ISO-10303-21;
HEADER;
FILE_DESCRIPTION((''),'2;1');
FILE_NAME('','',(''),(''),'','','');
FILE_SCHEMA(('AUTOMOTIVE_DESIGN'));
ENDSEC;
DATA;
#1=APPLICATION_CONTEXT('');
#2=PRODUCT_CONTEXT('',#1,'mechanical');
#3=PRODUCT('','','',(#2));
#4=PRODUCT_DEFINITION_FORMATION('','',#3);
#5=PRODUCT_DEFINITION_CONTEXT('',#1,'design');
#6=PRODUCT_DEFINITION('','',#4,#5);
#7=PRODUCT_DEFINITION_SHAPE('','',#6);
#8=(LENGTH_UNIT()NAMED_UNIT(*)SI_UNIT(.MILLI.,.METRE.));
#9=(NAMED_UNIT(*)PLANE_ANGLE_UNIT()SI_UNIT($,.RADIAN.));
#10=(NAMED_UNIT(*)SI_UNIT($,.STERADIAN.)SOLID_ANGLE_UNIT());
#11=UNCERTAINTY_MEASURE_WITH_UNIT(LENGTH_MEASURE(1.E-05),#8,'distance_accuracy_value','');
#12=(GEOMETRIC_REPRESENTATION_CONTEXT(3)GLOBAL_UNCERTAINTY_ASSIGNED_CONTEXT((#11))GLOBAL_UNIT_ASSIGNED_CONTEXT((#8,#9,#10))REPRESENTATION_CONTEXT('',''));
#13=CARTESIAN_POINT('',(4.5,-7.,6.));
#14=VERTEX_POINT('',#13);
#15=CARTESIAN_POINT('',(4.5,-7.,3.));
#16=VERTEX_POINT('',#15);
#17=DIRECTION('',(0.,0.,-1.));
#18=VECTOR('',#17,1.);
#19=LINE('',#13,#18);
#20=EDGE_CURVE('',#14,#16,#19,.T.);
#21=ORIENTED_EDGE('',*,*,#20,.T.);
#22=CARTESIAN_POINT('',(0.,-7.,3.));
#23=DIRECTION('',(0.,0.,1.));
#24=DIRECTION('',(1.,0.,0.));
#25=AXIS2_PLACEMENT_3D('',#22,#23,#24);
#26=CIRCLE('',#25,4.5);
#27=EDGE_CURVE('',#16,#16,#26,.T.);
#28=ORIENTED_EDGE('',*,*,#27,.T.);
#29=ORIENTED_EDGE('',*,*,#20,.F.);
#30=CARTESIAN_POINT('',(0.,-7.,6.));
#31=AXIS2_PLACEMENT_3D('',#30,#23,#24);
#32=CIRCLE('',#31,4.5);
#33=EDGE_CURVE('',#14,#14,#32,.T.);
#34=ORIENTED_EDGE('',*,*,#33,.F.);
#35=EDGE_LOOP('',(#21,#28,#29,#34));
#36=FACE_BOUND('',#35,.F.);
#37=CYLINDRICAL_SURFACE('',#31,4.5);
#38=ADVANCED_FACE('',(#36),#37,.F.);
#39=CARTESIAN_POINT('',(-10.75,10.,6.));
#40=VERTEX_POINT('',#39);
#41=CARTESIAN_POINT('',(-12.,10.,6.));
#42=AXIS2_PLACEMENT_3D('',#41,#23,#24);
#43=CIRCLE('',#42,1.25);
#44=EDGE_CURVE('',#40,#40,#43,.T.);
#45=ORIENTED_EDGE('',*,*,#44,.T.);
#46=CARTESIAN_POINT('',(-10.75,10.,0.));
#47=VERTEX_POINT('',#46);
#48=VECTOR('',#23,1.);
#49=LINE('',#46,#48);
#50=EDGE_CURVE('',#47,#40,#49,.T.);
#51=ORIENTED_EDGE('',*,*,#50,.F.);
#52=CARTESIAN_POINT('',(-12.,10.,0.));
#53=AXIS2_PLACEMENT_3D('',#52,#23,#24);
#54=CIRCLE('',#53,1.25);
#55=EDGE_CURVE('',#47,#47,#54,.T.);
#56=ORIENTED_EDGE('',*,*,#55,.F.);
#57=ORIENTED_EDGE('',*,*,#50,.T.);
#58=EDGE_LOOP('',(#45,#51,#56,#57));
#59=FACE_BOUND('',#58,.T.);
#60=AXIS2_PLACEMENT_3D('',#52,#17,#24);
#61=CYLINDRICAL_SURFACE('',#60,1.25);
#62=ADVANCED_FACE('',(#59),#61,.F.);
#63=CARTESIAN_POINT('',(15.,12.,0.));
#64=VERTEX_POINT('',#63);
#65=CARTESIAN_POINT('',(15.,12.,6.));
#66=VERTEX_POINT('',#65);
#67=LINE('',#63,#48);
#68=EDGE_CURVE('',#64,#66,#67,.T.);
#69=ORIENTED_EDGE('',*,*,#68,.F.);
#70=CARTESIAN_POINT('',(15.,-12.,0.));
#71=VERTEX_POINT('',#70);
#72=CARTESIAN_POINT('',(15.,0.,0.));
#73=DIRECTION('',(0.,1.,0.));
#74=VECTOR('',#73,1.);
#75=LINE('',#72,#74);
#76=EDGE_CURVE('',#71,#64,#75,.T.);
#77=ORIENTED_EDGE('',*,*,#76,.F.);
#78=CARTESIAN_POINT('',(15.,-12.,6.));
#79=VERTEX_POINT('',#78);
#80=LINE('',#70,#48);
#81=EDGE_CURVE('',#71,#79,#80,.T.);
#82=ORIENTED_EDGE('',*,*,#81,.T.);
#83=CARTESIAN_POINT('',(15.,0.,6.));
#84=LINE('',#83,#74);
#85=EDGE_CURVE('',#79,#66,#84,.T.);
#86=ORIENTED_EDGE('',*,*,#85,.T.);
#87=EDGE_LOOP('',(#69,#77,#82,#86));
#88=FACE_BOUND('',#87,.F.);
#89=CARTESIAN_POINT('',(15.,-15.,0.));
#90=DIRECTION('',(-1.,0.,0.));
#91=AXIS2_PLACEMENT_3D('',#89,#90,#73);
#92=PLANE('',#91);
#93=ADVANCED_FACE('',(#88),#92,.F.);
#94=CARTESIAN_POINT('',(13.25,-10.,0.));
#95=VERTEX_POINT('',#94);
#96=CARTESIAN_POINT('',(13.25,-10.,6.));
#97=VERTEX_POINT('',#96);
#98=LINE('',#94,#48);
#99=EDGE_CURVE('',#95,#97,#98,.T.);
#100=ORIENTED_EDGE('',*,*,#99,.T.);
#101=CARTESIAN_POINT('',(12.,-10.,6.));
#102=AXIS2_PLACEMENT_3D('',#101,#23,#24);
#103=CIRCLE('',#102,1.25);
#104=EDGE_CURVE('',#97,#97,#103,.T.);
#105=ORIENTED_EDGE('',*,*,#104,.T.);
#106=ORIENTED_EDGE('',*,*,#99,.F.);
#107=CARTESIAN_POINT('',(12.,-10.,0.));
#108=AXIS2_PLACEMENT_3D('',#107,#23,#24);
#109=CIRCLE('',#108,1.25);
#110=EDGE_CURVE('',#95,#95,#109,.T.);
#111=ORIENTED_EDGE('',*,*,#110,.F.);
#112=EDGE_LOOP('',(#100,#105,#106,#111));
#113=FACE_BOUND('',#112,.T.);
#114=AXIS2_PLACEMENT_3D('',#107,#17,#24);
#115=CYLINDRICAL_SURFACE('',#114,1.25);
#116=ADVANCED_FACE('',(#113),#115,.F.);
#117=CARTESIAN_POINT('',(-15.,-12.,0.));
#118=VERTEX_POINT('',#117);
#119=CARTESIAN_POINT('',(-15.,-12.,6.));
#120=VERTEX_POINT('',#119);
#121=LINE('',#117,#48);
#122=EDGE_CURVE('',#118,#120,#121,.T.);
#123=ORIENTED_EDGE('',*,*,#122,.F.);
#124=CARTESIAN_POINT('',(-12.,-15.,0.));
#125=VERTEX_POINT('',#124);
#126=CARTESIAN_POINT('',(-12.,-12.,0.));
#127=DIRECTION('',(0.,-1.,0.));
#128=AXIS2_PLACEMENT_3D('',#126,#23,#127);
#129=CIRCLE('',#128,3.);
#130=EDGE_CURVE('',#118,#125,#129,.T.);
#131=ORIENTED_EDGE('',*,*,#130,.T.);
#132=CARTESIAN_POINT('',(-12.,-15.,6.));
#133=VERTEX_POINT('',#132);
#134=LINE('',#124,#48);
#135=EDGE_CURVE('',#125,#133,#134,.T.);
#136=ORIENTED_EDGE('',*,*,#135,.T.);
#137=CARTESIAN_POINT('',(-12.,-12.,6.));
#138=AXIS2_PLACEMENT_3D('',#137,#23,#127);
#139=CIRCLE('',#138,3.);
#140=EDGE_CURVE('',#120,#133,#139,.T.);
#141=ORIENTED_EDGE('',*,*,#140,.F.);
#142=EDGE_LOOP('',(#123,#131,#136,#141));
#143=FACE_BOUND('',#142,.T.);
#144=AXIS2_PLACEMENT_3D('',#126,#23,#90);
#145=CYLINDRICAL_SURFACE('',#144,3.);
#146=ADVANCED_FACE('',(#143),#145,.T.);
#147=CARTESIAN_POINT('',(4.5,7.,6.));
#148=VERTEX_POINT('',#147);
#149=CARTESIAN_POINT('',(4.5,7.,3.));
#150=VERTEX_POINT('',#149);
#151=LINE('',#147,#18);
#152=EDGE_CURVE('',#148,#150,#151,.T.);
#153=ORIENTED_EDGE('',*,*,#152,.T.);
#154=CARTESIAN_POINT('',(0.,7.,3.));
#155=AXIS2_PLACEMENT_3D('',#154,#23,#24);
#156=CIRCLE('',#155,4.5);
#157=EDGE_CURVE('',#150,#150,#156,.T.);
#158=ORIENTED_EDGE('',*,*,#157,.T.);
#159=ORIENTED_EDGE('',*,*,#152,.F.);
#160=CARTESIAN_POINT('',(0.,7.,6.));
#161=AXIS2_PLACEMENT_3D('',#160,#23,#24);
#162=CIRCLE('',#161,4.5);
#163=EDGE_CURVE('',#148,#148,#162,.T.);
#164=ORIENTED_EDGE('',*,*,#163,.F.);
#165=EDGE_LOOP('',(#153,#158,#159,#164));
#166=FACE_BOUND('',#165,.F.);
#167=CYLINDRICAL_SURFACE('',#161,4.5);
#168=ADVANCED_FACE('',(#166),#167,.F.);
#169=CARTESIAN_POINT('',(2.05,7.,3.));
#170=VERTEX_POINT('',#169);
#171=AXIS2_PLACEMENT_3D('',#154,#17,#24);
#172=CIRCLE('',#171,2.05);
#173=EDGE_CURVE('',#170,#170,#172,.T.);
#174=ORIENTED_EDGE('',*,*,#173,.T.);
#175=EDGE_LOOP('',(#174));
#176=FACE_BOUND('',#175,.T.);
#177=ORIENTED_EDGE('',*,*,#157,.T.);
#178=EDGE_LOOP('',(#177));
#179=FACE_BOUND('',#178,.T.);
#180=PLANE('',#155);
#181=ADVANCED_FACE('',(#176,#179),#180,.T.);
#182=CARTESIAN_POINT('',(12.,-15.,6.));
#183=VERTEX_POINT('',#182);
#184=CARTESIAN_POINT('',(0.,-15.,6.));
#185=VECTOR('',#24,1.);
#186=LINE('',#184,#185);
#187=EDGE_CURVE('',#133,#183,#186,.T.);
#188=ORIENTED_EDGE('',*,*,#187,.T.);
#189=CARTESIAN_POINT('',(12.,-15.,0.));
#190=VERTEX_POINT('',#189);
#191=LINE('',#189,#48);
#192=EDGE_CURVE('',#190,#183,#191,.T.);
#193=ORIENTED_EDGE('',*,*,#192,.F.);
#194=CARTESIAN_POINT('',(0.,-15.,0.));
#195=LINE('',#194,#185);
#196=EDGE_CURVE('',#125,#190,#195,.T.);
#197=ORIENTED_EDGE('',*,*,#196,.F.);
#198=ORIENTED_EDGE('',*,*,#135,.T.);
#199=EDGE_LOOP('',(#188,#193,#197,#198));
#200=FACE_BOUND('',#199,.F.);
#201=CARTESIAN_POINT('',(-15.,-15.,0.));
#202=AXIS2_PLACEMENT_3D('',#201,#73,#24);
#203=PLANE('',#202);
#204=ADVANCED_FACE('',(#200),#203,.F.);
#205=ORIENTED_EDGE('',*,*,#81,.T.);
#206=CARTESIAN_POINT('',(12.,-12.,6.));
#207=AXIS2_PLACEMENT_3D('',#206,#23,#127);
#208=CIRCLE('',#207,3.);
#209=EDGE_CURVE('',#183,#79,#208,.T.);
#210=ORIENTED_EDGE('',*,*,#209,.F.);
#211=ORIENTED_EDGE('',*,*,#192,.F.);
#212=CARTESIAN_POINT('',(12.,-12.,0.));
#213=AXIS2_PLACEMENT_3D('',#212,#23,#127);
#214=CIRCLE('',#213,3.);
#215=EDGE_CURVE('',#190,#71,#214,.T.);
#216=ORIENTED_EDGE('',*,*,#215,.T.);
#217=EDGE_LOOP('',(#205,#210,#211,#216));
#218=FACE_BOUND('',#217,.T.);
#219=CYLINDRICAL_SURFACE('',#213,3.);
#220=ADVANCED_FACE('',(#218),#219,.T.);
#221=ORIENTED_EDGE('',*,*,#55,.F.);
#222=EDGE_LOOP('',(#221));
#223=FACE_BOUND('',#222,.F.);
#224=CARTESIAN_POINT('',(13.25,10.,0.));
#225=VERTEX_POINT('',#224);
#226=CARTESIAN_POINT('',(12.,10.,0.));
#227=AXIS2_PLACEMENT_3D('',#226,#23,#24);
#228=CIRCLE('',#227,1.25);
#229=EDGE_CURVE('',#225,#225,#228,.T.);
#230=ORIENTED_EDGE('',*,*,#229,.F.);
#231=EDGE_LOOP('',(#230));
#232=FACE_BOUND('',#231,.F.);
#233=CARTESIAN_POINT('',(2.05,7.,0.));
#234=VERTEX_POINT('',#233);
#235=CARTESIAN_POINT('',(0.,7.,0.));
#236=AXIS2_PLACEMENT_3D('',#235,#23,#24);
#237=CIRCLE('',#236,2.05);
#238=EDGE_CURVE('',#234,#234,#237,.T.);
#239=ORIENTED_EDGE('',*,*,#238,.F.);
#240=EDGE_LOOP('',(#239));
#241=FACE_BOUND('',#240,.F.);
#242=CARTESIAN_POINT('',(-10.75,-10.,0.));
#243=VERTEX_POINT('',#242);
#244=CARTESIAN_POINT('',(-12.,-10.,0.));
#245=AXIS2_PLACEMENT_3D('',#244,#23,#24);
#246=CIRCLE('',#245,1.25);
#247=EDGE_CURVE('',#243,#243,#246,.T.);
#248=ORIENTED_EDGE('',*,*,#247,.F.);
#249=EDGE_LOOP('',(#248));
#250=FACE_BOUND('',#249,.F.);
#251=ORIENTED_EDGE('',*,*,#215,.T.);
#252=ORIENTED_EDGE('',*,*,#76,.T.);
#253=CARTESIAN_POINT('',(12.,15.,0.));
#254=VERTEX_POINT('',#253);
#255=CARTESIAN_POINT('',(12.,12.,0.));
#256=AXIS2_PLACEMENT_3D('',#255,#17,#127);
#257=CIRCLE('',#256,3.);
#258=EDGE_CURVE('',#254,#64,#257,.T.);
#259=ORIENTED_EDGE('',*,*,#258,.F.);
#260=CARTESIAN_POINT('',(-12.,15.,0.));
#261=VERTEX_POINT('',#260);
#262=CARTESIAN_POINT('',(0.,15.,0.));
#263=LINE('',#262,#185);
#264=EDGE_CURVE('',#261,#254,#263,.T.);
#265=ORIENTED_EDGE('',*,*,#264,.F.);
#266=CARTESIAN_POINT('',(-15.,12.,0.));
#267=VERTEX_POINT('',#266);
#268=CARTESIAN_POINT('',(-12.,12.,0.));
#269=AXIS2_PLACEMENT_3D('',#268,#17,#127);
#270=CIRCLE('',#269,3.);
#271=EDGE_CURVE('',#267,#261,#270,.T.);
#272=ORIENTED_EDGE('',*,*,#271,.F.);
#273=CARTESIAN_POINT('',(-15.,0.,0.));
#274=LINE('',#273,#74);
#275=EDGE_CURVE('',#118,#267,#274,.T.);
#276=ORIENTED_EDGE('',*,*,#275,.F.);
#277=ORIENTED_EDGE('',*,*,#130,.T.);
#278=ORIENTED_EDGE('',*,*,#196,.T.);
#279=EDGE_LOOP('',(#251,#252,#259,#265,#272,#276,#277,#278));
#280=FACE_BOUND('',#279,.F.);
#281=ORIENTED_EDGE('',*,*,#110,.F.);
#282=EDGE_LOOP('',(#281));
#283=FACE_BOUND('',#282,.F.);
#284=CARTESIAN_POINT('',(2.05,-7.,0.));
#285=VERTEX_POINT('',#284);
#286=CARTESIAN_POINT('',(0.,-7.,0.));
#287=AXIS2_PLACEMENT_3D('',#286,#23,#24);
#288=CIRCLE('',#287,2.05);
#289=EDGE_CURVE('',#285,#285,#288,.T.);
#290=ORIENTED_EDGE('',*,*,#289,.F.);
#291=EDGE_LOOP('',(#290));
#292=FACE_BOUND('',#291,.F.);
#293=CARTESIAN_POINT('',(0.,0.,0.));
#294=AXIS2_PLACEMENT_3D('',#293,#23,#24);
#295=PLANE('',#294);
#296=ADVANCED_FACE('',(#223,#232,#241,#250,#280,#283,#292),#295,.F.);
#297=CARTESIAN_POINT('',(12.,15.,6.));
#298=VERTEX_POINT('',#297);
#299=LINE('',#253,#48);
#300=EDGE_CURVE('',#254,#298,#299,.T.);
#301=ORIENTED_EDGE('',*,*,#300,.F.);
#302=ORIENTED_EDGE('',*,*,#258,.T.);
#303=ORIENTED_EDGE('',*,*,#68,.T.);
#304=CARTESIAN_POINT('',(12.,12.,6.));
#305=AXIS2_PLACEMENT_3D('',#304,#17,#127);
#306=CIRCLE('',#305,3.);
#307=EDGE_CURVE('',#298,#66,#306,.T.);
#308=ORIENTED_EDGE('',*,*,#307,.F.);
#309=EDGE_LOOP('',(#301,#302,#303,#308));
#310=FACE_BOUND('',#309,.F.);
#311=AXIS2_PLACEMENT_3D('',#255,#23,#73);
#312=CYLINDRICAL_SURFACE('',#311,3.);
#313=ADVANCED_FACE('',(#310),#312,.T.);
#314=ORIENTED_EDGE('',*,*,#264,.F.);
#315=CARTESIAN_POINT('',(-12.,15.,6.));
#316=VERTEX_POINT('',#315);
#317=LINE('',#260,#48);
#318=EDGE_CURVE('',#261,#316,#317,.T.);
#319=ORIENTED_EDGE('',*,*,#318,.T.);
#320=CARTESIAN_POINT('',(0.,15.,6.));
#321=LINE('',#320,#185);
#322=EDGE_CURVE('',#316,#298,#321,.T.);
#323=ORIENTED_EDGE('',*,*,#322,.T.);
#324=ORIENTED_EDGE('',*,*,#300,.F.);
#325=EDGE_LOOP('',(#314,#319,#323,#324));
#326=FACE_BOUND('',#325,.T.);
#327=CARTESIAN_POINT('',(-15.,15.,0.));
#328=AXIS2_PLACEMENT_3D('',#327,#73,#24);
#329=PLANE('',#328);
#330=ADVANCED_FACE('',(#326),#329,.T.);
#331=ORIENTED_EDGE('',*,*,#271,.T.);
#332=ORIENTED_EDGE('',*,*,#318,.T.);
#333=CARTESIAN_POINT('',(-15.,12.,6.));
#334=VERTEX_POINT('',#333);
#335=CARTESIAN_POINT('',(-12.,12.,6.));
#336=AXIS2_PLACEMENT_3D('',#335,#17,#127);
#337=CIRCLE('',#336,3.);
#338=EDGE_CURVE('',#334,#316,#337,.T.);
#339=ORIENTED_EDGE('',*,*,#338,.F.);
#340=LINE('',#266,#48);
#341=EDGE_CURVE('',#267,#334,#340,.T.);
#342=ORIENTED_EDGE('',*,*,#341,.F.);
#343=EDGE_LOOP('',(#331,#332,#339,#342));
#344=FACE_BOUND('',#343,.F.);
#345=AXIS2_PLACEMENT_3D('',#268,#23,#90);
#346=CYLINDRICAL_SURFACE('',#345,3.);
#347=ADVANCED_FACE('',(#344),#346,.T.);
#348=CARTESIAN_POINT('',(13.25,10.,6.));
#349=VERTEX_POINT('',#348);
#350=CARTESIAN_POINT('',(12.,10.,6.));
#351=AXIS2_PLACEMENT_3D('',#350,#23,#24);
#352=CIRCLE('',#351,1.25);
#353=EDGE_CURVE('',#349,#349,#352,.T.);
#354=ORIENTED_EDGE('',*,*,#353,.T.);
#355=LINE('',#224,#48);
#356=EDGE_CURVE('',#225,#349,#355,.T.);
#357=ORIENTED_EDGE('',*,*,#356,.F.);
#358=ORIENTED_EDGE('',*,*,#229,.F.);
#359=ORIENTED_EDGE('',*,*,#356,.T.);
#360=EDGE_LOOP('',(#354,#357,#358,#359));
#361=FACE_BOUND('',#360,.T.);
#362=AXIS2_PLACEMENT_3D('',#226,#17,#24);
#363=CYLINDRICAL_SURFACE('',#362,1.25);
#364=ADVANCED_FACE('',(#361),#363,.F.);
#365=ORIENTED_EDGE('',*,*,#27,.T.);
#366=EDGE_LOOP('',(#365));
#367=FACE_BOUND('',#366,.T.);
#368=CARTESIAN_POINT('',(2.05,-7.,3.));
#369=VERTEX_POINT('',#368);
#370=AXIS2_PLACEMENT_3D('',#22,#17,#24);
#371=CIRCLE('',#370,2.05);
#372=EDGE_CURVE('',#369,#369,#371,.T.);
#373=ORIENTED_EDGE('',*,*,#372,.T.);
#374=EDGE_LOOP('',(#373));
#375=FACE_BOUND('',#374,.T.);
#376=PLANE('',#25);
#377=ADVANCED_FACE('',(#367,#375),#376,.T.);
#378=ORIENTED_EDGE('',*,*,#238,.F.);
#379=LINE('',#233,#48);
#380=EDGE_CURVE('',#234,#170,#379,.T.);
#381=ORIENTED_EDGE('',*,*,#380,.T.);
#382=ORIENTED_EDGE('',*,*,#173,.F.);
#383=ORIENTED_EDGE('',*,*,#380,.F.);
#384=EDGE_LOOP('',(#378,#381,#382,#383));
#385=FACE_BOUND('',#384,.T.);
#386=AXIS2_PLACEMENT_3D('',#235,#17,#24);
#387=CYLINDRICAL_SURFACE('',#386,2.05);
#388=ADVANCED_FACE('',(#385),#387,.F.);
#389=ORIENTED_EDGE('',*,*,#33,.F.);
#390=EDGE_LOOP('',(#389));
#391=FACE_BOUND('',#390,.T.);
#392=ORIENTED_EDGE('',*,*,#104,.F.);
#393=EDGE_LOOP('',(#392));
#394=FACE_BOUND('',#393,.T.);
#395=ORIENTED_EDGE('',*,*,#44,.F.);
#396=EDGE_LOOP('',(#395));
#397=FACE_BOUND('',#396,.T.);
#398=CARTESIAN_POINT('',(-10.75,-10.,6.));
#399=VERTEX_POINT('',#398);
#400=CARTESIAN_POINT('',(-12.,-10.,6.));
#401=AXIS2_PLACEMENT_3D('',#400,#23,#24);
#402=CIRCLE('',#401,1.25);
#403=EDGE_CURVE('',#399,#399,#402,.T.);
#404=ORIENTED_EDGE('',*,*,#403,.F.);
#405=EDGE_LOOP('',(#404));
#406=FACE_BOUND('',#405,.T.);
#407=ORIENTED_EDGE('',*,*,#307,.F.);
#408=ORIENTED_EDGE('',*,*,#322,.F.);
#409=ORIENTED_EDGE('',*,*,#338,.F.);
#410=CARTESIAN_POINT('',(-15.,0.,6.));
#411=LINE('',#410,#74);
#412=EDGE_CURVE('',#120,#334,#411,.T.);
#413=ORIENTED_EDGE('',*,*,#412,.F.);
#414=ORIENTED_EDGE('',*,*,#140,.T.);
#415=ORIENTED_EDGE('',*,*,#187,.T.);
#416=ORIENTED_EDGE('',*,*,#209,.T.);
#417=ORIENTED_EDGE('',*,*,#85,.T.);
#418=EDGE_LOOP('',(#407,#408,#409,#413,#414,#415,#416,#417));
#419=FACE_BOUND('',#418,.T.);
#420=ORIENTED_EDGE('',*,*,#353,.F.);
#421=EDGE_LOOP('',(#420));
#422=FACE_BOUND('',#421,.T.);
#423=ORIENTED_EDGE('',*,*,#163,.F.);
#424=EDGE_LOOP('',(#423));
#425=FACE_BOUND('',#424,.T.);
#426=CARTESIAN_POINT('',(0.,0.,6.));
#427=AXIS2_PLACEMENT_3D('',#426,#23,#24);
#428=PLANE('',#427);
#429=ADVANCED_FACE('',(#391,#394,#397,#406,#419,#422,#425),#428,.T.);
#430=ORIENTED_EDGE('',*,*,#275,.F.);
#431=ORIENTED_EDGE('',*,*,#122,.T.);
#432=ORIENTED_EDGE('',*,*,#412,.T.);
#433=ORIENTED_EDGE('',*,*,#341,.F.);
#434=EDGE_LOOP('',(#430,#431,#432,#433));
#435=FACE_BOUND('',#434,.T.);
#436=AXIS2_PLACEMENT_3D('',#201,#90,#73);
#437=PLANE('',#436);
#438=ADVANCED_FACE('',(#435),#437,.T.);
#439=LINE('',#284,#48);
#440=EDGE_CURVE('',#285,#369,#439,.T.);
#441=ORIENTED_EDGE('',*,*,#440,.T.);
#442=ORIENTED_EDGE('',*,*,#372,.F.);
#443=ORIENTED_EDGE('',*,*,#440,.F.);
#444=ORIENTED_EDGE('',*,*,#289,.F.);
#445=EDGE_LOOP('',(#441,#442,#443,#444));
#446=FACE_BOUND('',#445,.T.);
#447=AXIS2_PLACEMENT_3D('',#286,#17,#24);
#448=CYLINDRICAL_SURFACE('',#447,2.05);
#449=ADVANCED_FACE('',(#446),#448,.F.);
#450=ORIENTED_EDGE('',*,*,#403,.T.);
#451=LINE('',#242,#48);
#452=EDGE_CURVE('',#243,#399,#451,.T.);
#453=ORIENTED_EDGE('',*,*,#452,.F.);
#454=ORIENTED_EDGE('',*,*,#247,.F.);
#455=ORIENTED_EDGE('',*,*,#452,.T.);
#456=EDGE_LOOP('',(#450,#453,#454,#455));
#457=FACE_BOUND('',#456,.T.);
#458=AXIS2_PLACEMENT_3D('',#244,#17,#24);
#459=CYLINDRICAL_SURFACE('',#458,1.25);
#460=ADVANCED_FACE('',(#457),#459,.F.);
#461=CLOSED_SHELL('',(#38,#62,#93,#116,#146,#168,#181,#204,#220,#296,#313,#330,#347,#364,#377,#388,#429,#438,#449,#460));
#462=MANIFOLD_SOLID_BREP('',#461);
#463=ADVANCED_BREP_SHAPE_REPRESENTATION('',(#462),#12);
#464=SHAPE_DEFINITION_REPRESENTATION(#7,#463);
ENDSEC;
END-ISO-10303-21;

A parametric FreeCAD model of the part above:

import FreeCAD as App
import Part
import Sketcher


def edges_at(feature, points):
    """Names of the edges that pass closest to the given points."""
    edges = feature.Shape.Edges
    near = lambda p: min(range(len(edges)), key=lambda i: edges[i].distToShape(Part.Vertex(*p))[0])
    return sorted({f"Edge{near(p) + 1}" for p in points})

doc = App.newDocument("Part")
body = doc.addObject("PartDesign::Body", "Body")

# Sketch on XY plane
sketch1 = body.newObject("Sketcher::SketchObject", "Sketch")
sketch1.AttachmentSupport = (doc.getObject("XY_Plane"), [""])
sketch1.MapMode = "FlatFace"
sketch1.addGeometry([
    Part.LineSegment(App.Vector(-15, 15, 0), App.Vector(-15, -15, 0)),  # 0
    Part.LineSegment(App.Vector(-15, -15, 0), App.Vector(15, -15, 0)),  # 1
    Part.LineSegment(App.Vector(15, -15, 0), App.Vector(15, 15, 0)),  # 2
    Part.LineSegment(App.Vector(15, 15, 0), App.Vector(-15, 15, 0)),  # 3
    Part.Circle(App.Vector(-12, -10, 0), App.Vector(0, 0, 1), 1.2),  # 4
    Part.Circle(App.Vector(0, -7, 0), App.Vector(0, 0, 1), 2),  # 5
    Part.Circle(App.Vector(12, -10, 0), App.Vector(0, 0, 1), 1.2),  # 6
    Part.Circle(App.Vector(-12, 10, 0), App.Vector(0, 0, 1), 1.2),  # 7
    Part.Circle(App.Vector(0, 7, 0), App.Vector(0, 0, 1), 2),  # 8
    Part.Circle(App.Vector(12, 10, 0), App.Vector(0, 0, 1), 1.2),  # 9
], False)
sketch1.addConstraint([
    Sketcher.Constraint("Coincident", 0, 2, 1, 1),
    Sketcher.Constraint("Coincident", 1, 2, 2, 1),
    Sketcher.Constraint("Coincident", 2, 2, 3, 1),
    Sketcher.Constraint("Coincident", 3, 2, 0, 1),
    Sketcher.Constraint("Vertical", 0),
    Sketcher.Constraint("Horizontal", 1),
    Sketcher.Constraint("Vertical", 2),
    Sketcher.Constraint("Horizontal", 3),
    Sketcher.Constraint("Equal", 4, 6),
    Sketcher.Constraint("Equal", 6, 7),
    Sketcher.Constraint("Equal", 5, 8),
    Sketcher.Constraint("Equal", 7, 9),
    Sketcher.Constraint("Symmetric", 6, 3, 7, 3, -1, 1),
    Sketcher.Constraint("Symmetric", 5, 3, 8, 3, -1, 1),
    Sketcher.Constraint("Symmetric", 4, 3, 9, 3, -1, 1),
    Sketcher.Constraint("Symmetric", 0, 2, 2, 2, -1, 1),
    Sketcher.Constraint("Symmetric", 4, 3, 6, 3, -2),
    Sketcher.Constraint("PointOnObject", 5, 3, -2),
    Sketcher.Constraint("Equal", 3, 0),
    Sketcher.Constraint("Diameter", 4, 2.5),
    Sketcher.Constraint("Diameter", 5, 4.1),
    Sketcher.Constraint("DistanceX", 1, 1, 1, 2, 30.0),
    Sketcher.Constraint("DistanceX", 4, 3, -1, 1, 12.0),
    Sketcher.Constraint("DistanceY", 4, 3, -1, 1, 10.0),
    Sketcher.Constraint("DistanceY", 5, 3, -1, 1, 7.0),
])
pad1 = body.newObject("PartDesign::Pad", "Pad")
pad1.Profile = sketch1
pad1.Length = 6

# Sketch on XY plane
sketch2 = body.newObject("Sketcher::SketchObject", "Sketch001")
sketch2.AttachmentSupport = (doc.getObject("XY_Plane"), [""])
sketch2.MapMode = "FlatFace"
sketch2.AttachmentOffset = App.Placement(App.Vector(0, 0, 6), App.Rotation())
sketch2.addGeometry([
    Part.Circle(App.Vector(0, 7, 0), App.Vector(0, 0, 1), 4.5),
    Part.Circle(App.Vector(0, -7, 0), App.Vector(0, 0, 1), 4.5),
], False)
sketch2.addConstraint([
    Sketcher.Constraint("Equal", 0, 1),
    Sketcher.Constraint("Symmetric", 0, 3, 1, 3, -1, 1),
    Sketcher.Constraint("PointOnObject", 0, 3, -2),
    Sketcher.Constraint("Diameter", 0, 9.0),
    Sketcher.Constraint("DistanceY", -1, 1, 0, 3, 7.0),
])
pocket1 = body.newObject("PartDesign::Pocket", "Pocket")
pocket1.Profile = sketch2
pocket1.Length = 3
doc.recompute()

fillet = body.newObject("PartDesign::Fillet", "Fillet")
fillet.Base = (pocket1, edges_at(pocket1, [
    (15, -15, 3),
    (15, 15, 3),
    (-15, -15, 3),
    (-15, 15, 3),
]))
fillet.Radius = 3

doc.recompute()
